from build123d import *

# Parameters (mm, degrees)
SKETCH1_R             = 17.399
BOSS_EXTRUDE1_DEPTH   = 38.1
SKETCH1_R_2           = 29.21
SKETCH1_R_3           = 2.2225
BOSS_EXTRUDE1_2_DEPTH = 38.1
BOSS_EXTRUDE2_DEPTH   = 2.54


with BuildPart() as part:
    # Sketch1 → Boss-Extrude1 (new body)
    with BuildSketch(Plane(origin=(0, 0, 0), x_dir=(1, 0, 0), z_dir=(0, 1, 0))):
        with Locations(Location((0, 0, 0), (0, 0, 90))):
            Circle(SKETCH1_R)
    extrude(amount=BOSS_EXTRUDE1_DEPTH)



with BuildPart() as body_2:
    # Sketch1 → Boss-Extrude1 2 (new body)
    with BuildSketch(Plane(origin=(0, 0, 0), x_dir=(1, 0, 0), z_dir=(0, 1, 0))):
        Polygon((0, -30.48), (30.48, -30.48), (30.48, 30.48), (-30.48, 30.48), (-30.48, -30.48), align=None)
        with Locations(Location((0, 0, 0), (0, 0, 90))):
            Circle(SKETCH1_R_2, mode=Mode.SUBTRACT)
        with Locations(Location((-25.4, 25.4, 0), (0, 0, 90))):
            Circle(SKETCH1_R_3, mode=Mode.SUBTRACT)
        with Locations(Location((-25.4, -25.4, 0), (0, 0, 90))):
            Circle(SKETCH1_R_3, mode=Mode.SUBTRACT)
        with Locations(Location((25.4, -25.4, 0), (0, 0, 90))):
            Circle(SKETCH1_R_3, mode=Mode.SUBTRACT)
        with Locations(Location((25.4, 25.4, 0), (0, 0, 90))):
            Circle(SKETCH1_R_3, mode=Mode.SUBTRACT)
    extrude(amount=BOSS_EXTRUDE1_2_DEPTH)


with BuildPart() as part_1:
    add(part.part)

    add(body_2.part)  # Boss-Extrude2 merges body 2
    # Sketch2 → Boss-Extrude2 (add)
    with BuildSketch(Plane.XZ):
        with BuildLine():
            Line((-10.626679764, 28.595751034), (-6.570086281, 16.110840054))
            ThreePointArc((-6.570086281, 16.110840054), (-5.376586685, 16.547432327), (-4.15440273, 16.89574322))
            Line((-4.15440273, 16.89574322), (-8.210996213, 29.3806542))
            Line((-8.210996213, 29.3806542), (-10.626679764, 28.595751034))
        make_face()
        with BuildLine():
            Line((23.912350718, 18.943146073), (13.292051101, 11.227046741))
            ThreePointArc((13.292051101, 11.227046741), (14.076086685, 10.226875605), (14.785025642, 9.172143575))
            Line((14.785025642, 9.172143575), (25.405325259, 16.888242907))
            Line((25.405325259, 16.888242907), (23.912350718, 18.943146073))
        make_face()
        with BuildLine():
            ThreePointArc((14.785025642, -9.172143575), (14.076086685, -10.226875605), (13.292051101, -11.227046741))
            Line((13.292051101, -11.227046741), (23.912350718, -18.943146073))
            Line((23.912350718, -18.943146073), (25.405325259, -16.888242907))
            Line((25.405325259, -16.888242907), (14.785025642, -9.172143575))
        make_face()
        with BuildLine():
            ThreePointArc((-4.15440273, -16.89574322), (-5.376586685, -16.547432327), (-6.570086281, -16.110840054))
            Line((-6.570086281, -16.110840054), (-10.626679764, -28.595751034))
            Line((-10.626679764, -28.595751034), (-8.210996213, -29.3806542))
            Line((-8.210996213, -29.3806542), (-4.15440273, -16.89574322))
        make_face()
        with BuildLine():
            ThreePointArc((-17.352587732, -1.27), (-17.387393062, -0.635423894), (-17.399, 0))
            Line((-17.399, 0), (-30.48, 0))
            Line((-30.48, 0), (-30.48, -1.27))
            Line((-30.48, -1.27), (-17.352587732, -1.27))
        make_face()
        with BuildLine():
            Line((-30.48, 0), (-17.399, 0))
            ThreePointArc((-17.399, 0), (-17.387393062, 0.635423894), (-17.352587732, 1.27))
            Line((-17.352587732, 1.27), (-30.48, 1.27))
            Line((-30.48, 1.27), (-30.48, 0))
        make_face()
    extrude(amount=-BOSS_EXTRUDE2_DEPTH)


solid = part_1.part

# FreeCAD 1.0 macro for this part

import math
import FreeCAD as App
import Part
import Sketcher
from FreeCAD import Vector
Q = App.Units.Quantity


def add_polygon(sketch, points):
    """Adds a closed chain of lines whose ends are joined by coincident constraints."""
    first, n = sketch.GeometryCount, len(points)
    for a, b in zip(points, points[1:] + points[:1]):
        sketch.addGeometry(Part.LineSegment(App.Vector(*a, 0), App.Vector(*b, 0)), False)
    for i in range(n):
        sketch.addConstraint(Sketcher.Constraint("Coincident", first + i, 2, first + (i + 1) % n, 1))

doc = App.newDocument("Part")
body = doc.addObject("PartDesign::Body", "Body")

# Sketch on XZ plane
sketch1 = body.newObject("Sketcher::SketchObject", "Sketch")
sketch1.AttachmentSupport = (doc.getObject("XZ_Plane"), [""])
sketch1.MapMode = "FlatFace"
sketch1.addGeometry(Part.Circle(Vector(0, 0, 0), Vector(0, 0, 1), 17), False)
sketch1.addConstraint(Sketcher.Constraint("Coincident", 0, 3, -1, 1))
sketch1.addConstraint(Sketcher.Constraint("Diameter", 0, Q("1.37 in")))
pad1 = body.newObject("PartDesign::Pad", "Pad")
pad1.Profile = sketch1
pad1.Length = Q("1.5 in")
pad1.Reversed = True
body2 = doc.addObject("PartDesign::Body", "Body001")

# Sketch on XZ plane
sketch2 = body2.newObject("Sketcher::SketchObject", "Sketch001")
sketch2.AttachmentSupport = (doc.getObject("XZ_Plane001"), [""])
sketch2.MapMode = "FlatFace"
add_polygon(sketch2, [(30.5, 30.5), (30.5, -30.5), (-30.5, -30.5), (-30.5, 30.5)])  # lines 0-3
sketch2.addGeometry(Part.Circle(Vector(-25.4, 25.4, 0), Vector(0, 0, 1), 2.2), False)  # 4
sketch2.addGeometry(Part.Circle(Vector(0, 0, 0), Vector(0, 0, 1), 29.2), False)  # 5
sketch2.addGeometry(Part.Circle(Vector(25.4, 25.4, 0), Vector(0, 0, 1), 2.2), False)  # 6
sketch2.addGeometry(Part.Circle(Vector(-25.4, -25.4, 0), Vector(0, 0, 1), 2.2), False)  # 7
sketch2.addGeometry(Part.Circle(Vector(25.4, -25.4, 0), Vector(0, 0, 1), 2.2), False)  # 8
sketch2.addConstraint(Sketcher.Constraint("Vertical", 0))
sketch2.addConstraint(Sketcher.Constraint("Horizontal", 1))
sketch2.addConstraint(Sketcher.Constraint("Vertical", 2))
sketch2.addConstraint(Sketcher.Constraint("Horizontal", 3))
sketch2.addConstraint(Sketcher.Constraint("Coincident", 5, 3, -1, 1))
sketch2.addConstraint(Sketcher.Constraint("Equal", 4, 6))
sketch2.addConstraint(Sketcher.Constraint("Equal", 6, 7))
sketch2.addConstraint(Sketcher.Constraint("Equal", 7, 8))
sketch2.addConstraint(Sketcher.Constraint("Symmetric", 6, 3, 7, 3, -1, 1))
sketch2.addConstraint(Sketcher.Constraint("Symmetric", 4, 3, 8, 3, -1, 1))
sketch2.addConstraint(Sketcher.Constraint("Symmetric", 0, 2, 2, 2, -1, 1))
sketch2.addConstraint(Sketcher.Constraint("Symmetric", 4, 3, 6, 3, -2))
sketch2.addConstraint(Sketcher.Constraint("Equal", 3, 0))
sketch2.addConstraint(Sketcher.Constraint("Diameter", 5, Q("2.3 in")))
sketch2.addConstraint(Sketcher.Constraint("Diameter", 4, Q("0.175 in")))
sketch2.addConstraint(Sketcher.Constraint("DistanceX", 1, 2, 1, 1, Q("2.4 in")))
sketch2.addConstraint(Sketcher.Constraint("DistanceX", 4, 3, -1, 1, Q("1 in")))
sketch2.addConstraint(Sketcher.Constraint("DistanceY", -1, 1, 4, 3, Q("1 in")))
pad2 = body2.newObject("PartDesign::Pad", "Pad001")
pad2.Profile = sketch2
pad2.Length = Q("1.5 in")
pad2.Reversed = True
body.AllowCompound = True
doc.recompute()

boolean = body.newObject("PartDesign::Boolean", "Boolean")
boolean.Type = "Fuse"
boolean.addObjects([body2])

# Sketch on XZ plane
sketch3 = body.newObject("Sketcher::SketchObject", "Sketch002")
sketch3.AttachmentSupport = (doc.getObject("XZ_Plane"), [""])
sketch3.MapMode = "FlatFace"
sketch3.addGeometry(Part.LineSegment(Vector(-10.6, 28.6, 0), Vector(-6.6, 16.1, 0)), False)
sketch3.addGeometry(Part.ArcOfCircle(Part.Circle(Vector(0, 0, 0), Vector(0, 0, 1), 17.4), math.radians(103.81), math.radians(112.19)), False)
sketch3.addGeometry(Part.LineSegment(Vector(-4.2, 16.9, 0), Vector(-8.2, 29.4, 0)), False)
sketch3.addGeometry(Part.LineSegment(Vector(-8.2, 29.4, 0), Vector(-10.6, 28.6, 0)), False)
sketch3.addGeometry(Part.LineSegment(Vector(23.9, 18.9, 0), Vector(13.3, 11.2, 0)), False)
sketch3.addGeometry(Part.ArcOfCircle(Part.Circle(Vector(0, 0, 0), Vector(0, 0, 1), 17.4), math.radians(31.81), math.radians(40.19)), False)
sketch3.addGeometry(Part.LineSegment(Vector(14.8, 9.2, 0), Vector(25.4, 16.9, 0)), False)
sketch3.addGeometry(Part.LineSegment(Vector(25.4, 16.9, 0), Vector(23.9, 18.9, 0)), False)
sketch3.addGeometry(Part.ArcOfCircle(Part.Circle(Vector(0, 0, 0), Vector(0, 0, 1), 17.4), math.radians(-40.19), math.radians(-31.81)), False)
sketch3.addGeometry(Part.LineSegment(Vector(13.3, -11.2, 0), Vector(23.9, -18.9, 0)), False)
sketch3.addGeometry(Part.LineSegment(Vector(23.9, -18.9, 0), Vector(25.4, -16.9, 0)), False)
sketch3.addGeometry(Part.LineSegment(Vector(25.4, -16.9, 0), Vector(14.8, -9.2, 0)), False)
sketch3.addGeometry(Part.ArcOfCircle(Part.Circle(Vector(0, 0, 0), Vector(0, 0, 1), 17.4), math.radians(-112.19), math.radians(-103.81)), False)
sketch3.addGeometry(Part.LineSegment(Vector(-6.6, -16.1, 0), Vector(-10.6, -28.6, 0)), False)
sketch3.addGeometry(Part.LineSegment(Vector(-10.6, -28.6, 0), Vector(-8.2, -29.4, 0)), False)
sketch3.addGeometry(Part.LineSegment(Vector(-8.2, -29.4, 0), Vector(-4.2, -16.9, 0)), False)
sketch3.addGeometry(Part.ArcOfCircle(Part.Circle(Vector(0, 0, 0), Vector(0, 0, 1), 17.4), math.radians(180), math.radians(184.19)), False)
sketch3.addGeometry(Part.ArcOfCircle(Part.Circle(Vector(0, 0, 0), Vector(0, 0, 1), 17.4), math.radians(175.81), math.radians(180)), False)
sketch3.addGeometry(Part.LineSegment(Vector(-17.4, 1.3, 0), Vector(-30.5, 1.3, 0)), False)
sketch3.addGeometry(Part.LineSegment(Vector(-30.5, 1.3, 0), Vector(-30.5, -1.3, 0)), False)
sketch3.addGeometry(Part.LineSegment(Vector(-30.5, -1.3, 0), Vector(-17.4, -1.3, 0)), False)
sketch3.addConstraint(Sketcher.Constraint("Coincident", 0, 2, 1, 2))
sketch3.addConstraint(Sketcher.Constraint("Coincident", 1, 1, 2, 1))
sketch3.addConstraint(Sketcher.Constraint("Coincident", 2, 2, 3, 1))
sketch3.addConstraint(Sketcher.Constraint("Coincident", 3, 2, 0, 1))
sketch3.addConstraint(Sketcher.Constraint("Coincident", 4, 2, 5, 2))
sketch3.addConstraint(Sketcher.Constraint("Coincident", 5, 1, 6, 1))
sketch3.addConstraint(Sketcher.Constraint("Coincident", 6, 2, 7, 1))
sketch3.addConstraint(Sketcher.Constraint("Coincident", 7, 2, 4, 1))
sketch3.addConstraint(Sketcher.Constraint("Coincident", 8, 1, 9, 1))
sketch3.addConstraint(Sketcher.Constraint("Coincident", 9, 2, 10, 1))
sketch3.addConstraint(Sketcher.Constraint("Coincident", 10, 2, 11, 1))
sketch3.addConstraint(Sketcher.Constraint("Coincident", 11, 2, 8, 2))
sketch3.addConstraint(Sketcher.Constraint("Coincident", 12, 1, 13, 1))
sketch3.addConstraint(Sketcher.Constraint("Coincident", 13, 2, 14, 1))
sketch3.addConstraint(Sketcher.Constraint("Coincident", 14, 2, 15, 1))
sketch3.addConstraint(Sketcher.Constraint("Coincident", 15, 2, 12, 2))
sketch3.addConstraint(Sketcher.Constraint("Tangent", 16, 1, 17, 2))
sketch3.addConstraint(Sketcher.Constraint("Coincident", 17, 1, 18, 1))
sketch3.addConstraint(Sketcher.Constraint("Coincident", 18, 2, 19, 1))
sketch3.addConstraint(Sketcher.Constraint("Coincident", 19, 2, 20, 1))
sketch3.addConstraint(Sketcher.Constraint("Coincident", 20, 2, 16, 2))
sketch3.addConstraint(Sketcher.Constraint("Horizontal", 18))
sketch3.addConstraint(Sketcher.Constraint("Vertical", 19))
sketch3.addConstraint(Sketcher.Constraint("Horizontal", 20))
sketch3.addConstraint(Sketcher.Constraint("Coincident", 1, 3, -1, 1))
sketch3.addConstraint(Sketcher.Constraint("Coincident", 5, 3, -1, 1))
sketch3.addConstraint(Sketcher.Constraint("Coincident", 8, 3, -1, 1))
sketch3.addConstraint(Sketcher.Constraint("Coincident", 12, 3, -1, 1))
sketch3.addConstraint(Sketcher.Constraint("Coincident", 16, 3, -1, 1))
sketch3.addConstraint(Sketcher.Constraint("Equal", 1, 5))
sketch3.addConstraint(Sketcher.Constraint("Equal", 5, 8))
sketch3.addConstraint(Sketcher.Constraint("Equal", 8, 12))
sketch3.addConstraint(Sketcher.Constraint("Equal", 12, 16))
sketch3.addConstraint(Sketcher.Constraint("Equal", 16, 17))
sketch3.addConstraint(Sketcher.Constraint("Symmetric", 7, 2, 9, 2, -1))
sketch3.addConstraint(Sketcher.Constraint("Symmetric", 6, 2, 10, 2, -1))
sketch3.addConstraint(Sketcher.Constraint("Symmetric", 3, 2, 13, 2, -1))
sketch3.addConstraint(Sketcher.Constraint("Symmetric", 2, 2, 14, 2, -1))
sketch3.addConstraint(Sketcher.Constraint("PointOnObject", 16, 1, -1))
sketch3.addConstraint(Sketcher.Constraint("Parallel", 0, 2))
sketch3.addConstraint(Sketcher.Constraint("Perpendicular", 2, 3))
sketch3.addConstraint(Sketcher.Constraint("Parallel", 4, 6))
sketch3.addConstraint(Sketcher.Constraint("Perpendicular", 6, 7))
sketch3.addConstraint(Sketcher.Constraint("Perpendicular", 9, 10))
sketch3.addConstraint(Sketcher.Constraint("Perpendicular", 10, 11))
sketch3.addConstraint(Sketcher.Constraint("Perpendicular", 13, 14))
sketch3.addConstraint(Sketcher.Constraint("Perpendicular", 14, 15))
sketch3.addConstraint(Sketcher.Constraint("Vertical", 17, 1, 20, 2))
sketch3.addConstraint(Sketcher.Constraint("Equal", 0, 2))
sketch3.addConstraint(Sketcher.Constraint("Equal", 2, 4))
sketch3.addConstraint(Sketcher.Constraint("Equal", 4, 6))
sketch3.addConstraint(Sketcher.Constraint("Equal", 3, 7))
sketch3.addConstraint(Sketcher.Constraint("DistanceY", 19, 2, 19, 1, Q("0.1 in")))
sketch3.addConstraint(Sketcher.Constraint("Angle", 0, Q("-72 deg")))
sketch3.addConstraint(Sketcher.Constraint("Angle", 4, Q("-144 deg")))
sketch3.addConstraint(Sketcher.Constraint("Radius", 1, Q("0.685 in")))
sketch3.addConstraint(Sketcher.Constraint("Distance", 3, Q("0.1 in")))
sketch3.addConstraint(Sketcher.Constraint("DistanceX", 18, 2, -1, 1, Q("1.2 in")))
sketch3.addConstraint(Sketcher.Constraint("DistanceX", 5, 1, 6, 2, 10.6203))
pad3 = body.newObject("PartDesign::Pad", "Pad002")
pad3.Profile = sketch3
pad3.Length = Q("0.1 in")
pad3.Reversed = True

doc.recompute()
